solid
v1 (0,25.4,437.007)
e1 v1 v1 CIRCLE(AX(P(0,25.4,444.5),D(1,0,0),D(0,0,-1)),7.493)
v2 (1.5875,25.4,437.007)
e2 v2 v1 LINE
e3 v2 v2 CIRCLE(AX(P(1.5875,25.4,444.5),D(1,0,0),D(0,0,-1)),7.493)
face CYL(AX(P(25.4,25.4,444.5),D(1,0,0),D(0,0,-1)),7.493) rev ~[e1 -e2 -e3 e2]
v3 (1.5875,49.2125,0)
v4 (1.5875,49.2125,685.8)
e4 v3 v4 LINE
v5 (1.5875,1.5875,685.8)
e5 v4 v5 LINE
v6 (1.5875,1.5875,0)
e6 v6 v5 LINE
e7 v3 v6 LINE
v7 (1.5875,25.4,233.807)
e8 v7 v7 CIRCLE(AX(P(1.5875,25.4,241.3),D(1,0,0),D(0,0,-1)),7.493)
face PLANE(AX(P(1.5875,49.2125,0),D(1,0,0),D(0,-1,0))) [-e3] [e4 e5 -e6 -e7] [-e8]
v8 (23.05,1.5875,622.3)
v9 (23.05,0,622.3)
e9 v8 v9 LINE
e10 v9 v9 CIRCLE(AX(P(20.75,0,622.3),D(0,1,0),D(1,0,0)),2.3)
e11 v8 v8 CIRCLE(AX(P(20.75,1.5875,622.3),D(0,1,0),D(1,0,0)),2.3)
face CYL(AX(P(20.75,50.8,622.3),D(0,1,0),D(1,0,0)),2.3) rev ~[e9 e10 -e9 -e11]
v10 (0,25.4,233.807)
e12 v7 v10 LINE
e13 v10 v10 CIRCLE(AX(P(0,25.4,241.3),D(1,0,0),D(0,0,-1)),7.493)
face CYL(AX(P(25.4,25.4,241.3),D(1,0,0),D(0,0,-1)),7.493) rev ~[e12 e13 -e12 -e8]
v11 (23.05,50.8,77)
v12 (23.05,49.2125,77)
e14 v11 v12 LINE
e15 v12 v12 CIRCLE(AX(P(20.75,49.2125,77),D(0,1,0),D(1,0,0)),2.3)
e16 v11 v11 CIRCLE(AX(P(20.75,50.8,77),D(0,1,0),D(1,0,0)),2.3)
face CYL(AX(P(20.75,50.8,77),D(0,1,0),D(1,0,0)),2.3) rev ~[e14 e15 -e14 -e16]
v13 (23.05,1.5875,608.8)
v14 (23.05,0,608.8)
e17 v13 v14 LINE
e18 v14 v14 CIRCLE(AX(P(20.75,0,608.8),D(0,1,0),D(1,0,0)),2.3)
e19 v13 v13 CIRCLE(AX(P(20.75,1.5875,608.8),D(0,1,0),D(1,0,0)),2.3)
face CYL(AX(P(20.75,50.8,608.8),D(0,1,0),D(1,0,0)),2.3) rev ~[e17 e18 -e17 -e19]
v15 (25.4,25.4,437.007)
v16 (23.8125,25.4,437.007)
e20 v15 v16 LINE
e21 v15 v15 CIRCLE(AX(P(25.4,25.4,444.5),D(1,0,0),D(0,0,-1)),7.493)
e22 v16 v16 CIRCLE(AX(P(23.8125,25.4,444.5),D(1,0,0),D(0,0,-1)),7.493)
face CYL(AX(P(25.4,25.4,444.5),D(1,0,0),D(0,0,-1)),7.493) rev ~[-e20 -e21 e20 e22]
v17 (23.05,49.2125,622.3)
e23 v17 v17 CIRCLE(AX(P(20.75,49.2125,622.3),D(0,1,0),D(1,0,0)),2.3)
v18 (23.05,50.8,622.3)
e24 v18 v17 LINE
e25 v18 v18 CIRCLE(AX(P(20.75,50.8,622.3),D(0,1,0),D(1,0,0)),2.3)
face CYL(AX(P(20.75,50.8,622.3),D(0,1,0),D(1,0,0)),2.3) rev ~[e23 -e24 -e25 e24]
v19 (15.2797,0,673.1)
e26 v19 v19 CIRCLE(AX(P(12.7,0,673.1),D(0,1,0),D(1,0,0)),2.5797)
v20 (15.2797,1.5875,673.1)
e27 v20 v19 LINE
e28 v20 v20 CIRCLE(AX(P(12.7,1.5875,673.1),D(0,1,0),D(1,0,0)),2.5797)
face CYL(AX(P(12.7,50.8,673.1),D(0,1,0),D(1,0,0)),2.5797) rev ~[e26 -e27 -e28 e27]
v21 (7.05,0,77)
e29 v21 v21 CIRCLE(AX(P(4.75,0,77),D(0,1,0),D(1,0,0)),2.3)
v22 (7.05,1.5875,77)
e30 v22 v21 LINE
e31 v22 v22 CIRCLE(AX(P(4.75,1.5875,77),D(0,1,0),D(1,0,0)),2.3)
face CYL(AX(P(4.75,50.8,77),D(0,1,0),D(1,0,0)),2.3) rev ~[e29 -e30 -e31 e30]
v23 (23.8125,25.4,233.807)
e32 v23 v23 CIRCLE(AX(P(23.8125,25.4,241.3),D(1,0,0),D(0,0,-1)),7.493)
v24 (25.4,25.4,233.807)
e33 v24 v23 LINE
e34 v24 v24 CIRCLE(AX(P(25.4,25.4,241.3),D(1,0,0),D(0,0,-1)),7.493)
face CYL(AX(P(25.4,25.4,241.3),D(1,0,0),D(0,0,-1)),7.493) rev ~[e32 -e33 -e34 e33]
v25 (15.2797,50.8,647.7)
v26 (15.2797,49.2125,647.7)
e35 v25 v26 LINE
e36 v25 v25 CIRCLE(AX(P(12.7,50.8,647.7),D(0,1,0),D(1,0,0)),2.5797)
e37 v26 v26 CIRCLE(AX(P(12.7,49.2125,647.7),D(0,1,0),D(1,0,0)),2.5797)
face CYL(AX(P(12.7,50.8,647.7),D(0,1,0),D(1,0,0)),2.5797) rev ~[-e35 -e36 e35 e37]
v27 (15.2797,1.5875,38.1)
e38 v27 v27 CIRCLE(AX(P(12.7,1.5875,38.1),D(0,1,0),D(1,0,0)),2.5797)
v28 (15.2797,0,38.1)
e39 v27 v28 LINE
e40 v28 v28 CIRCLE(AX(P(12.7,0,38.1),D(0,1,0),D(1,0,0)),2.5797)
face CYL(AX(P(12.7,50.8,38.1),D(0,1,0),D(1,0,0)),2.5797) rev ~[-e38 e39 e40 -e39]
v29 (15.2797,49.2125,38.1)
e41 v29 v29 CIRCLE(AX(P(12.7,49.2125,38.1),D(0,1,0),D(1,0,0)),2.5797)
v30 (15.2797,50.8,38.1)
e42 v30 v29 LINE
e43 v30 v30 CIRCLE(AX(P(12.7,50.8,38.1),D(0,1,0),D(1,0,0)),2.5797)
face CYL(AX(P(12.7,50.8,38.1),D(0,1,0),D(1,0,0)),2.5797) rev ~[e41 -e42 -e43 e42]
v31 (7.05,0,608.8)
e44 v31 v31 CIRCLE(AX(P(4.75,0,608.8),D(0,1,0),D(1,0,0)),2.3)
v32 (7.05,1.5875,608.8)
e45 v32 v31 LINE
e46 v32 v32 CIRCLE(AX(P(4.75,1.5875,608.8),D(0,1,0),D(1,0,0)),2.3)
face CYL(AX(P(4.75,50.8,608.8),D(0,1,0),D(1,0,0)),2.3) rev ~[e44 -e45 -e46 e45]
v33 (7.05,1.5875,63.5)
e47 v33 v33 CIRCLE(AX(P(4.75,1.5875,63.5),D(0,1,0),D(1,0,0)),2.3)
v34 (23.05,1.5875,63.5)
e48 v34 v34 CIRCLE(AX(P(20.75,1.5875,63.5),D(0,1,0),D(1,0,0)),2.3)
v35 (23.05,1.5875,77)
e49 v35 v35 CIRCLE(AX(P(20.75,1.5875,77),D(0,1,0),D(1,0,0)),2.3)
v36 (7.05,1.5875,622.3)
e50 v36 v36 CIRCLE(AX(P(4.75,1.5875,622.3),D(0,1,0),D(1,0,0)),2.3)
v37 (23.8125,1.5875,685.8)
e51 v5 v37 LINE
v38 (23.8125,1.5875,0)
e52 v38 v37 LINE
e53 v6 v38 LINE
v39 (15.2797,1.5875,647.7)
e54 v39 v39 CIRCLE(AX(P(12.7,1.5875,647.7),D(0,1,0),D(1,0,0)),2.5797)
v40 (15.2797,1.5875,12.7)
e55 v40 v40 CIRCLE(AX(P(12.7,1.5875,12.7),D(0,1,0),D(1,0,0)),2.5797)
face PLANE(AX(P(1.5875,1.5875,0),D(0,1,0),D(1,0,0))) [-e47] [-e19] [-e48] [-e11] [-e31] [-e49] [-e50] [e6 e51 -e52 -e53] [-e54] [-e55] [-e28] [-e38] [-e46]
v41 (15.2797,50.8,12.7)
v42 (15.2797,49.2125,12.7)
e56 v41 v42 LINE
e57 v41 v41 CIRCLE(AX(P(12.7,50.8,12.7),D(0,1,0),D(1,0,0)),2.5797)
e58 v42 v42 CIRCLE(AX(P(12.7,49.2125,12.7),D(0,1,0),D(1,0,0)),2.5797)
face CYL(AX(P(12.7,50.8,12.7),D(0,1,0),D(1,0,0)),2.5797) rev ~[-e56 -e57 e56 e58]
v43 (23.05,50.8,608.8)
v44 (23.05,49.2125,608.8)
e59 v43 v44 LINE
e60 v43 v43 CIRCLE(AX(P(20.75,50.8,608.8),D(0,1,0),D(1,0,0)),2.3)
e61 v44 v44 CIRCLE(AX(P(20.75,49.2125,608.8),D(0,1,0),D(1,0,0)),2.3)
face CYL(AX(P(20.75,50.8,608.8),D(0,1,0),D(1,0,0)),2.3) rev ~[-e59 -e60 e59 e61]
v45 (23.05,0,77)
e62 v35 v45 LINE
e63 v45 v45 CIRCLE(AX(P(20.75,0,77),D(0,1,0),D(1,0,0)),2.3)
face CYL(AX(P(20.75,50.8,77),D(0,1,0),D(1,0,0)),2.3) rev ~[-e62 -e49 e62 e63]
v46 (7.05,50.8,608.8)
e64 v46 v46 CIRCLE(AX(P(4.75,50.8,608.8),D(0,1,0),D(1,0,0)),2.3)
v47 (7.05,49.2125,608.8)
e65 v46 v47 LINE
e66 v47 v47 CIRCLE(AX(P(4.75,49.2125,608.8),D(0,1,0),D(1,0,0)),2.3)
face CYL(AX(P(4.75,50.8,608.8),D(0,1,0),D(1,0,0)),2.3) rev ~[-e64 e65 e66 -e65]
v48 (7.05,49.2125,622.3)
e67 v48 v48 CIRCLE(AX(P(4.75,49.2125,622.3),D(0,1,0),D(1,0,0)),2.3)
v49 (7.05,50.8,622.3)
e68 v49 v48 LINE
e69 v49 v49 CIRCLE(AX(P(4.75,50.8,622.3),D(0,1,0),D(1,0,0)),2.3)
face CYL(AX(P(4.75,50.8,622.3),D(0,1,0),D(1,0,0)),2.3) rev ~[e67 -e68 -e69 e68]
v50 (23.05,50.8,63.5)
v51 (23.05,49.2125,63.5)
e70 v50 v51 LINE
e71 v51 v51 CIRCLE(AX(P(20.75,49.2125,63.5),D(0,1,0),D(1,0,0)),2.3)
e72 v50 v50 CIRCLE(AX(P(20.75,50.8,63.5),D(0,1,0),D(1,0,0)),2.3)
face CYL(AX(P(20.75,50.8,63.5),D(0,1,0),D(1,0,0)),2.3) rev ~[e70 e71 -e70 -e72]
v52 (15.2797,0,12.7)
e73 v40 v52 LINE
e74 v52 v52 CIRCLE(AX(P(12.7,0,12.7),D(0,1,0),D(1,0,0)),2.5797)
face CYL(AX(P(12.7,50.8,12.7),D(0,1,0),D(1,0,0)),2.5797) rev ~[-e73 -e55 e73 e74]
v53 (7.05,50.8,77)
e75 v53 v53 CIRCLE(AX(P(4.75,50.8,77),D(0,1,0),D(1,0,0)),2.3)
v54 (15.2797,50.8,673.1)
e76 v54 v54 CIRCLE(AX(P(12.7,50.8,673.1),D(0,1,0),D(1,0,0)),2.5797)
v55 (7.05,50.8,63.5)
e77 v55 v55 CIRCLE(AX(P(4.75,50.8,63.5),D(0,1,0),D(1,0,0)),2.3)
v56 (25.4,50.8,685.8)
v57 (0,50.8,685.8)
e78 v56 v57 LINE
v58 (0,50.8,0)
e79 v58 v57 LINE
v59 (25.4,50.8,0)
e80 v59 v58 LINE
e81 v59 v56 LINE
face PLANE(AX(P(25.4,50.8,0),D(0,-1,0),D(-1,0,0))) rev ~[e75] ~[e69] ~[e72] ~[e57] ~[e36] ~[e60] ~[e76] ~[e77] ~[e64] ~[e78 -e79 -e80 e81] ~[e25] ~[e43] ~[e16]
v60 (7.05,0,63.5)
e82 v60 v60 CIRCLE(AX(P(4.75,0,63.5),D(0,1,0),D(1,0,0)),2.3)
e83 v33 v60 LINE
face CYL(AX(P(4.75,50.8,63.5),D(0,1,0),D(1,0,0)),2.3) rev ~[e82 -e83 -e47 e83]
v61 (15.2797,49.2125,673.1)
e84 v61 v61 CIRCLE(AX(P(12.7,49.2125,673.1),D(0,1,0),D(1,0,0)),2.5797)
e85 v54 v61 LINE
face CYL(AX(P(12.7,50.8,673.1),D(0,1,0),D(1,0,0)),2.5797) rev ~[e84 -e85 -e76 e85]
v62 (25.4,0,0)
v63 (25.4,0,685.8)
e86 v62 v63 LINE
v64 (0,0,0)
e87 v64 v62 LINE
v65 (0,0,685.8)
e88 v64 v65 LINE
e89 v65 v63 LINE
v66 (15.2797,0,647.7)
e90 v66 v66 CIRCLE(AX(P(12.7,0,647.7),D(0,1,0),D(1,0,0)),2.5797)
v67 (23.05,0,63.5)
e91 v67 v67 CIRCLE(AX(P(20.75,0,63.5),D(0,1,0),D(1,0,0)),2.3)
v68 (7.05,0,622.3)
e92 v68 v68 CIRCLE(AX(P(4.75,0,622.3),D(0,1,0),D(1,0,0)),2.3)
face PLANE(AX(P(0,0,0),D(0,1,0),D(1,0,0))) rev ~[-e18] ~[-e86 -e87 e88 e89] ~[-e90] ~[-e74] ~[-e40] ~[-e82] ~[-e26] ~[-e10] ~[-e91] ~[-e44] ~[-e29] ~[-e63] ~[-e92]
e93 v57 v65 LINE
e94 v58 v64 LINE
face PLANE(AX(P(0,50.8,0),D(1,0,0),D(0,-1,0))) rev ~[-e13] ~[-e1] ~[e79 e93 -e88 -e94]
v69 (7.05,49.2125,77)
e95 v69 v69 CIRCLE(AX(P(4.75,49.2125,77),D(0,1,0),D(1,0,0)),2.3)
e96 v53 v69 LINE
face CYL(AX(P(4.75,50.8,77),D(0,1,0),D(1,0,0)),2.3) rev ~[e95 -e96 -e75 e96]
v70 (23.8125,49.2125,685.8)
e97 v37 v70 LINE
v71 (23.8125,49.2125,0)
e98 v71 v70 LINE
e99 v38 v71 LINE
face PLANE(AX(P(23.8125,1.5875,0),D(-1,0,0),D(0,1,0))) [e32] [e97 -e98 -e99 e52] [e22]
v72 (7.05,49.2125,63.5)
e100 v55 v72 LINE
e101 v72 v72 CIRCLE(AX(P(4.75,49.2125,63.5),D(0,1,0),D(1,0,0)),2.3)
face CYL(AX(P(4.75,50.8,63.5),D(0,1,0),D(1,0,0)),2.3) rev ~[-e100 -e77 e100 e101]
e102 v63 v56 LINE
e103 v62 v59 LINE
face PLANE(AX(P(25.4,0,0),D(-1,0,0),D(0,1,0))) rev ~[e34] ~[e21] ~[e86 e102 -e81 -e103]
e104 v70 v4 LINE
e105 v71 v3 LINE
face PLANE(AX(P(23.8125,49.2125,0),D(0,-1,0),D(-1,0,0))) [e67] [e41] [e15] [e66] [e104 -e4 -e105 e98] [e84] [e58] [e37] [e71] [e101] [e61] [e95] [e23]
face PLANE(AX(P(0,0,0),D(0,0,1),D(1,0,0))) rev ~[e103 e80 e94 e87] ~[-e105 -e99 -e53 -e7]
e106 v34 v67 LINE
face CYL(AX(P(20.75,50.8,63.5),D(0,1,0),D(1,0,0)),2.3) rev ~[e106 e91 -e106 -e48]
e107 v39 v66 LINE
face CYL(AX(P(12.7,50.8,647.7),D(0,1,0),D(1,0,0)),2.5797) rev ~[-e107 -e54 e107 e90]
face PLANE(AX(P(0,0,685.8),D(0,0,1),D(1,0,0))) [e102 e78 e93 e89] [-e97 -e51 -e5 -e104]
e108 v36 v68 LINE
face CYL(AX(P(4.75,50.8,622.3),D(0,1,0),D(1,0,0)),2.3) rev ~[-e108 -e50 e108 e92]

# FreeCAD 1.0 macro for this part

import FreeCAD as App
import Part
import Sketcher
from FreeCAD import Vector
Q = App.Units.Quantity

doc = App.newDocument("Part")
params = doc.addObject("Spreadsheet::Sheet", "Params")
for row, (alias, value) in enumerate([
    ("sketch1_width", "1 in"),
    ("sketch1_height", "2 in"),
    ("pad1_length", "27 in"),
    ("sketch2_diameter", "0.203126 in"),
    ("pocket1_length", "6.5 in"),
    ("sketch3_diameter", "0.59 in"),
    ("pocket2_length", "1 in"),
    ("pocket3_length", "3.9375 in"),
], start=1):
    params.set(f"A{row}", alias)
    params.set(f"B{row}", "=" + value)
    params.setAlias(f"B{row}", alias)

body = doc.addObject("PartDesign::Body", "Body")

# Sketch on XY plane
sketch1 = doc.addObject("Sketcher::SketchObject", "Sketch")
body.addObject(sketch1)
sketch1.AttachmentSupport = (doc.XY_Plane, [""])
sketch1.MapMode = "FlatFace"
sketch1.addGeometry([
    Part.LineSegment(Vector(0, 51, 0), Vector(0, 0, 0)),  # 0
    Part.LineSegment(Vector(0, 0, 0), Vector(25, 0, 0)),  # 1
    Part.LineSegment(Vector(25, 0, 0), Vector(25, 51, 0)),  # 2
    Part.LineSegment(Vector(25, 51, 0), Vector(0, 51, 0)),  # 3
    Part.LineSegment(Vector(24, 2, 0), Vector(2, 2, 0)),  # 4
    Part.LineSegment(Vector(2, 2, 0), Vector(2, 49, 0)),  # 5
    Part.LineSegment(Vector(2, 49, 0), Vector(24, 49, 0)),  # 6
    Part.LineSegment(Vector(24, 49, 0), Vector(24, 2, 0)),  # 7
], False)
sketch1.addConstraint([
    Sketcher.Constraint("Coincident", 0, 2, 1, 1),
    Sketcher.Constraint("Coincident", 1, 2, 2, 1),
    Sketcher.Constraint("Coincident", 2, 2, 3, 1),
    Sketcher.Constraint("Coincident", 3, 2, 0, 1),
    Sketcher.Constraint("Coincident", 4, 2, 5, 1),
    Sketcher.Constraint("Coincident", 5, 2, 6, 1),
    Sketcher.Constraint("Coincident", 6, 2, 7, 1),
    Sketcher.Constraint("Coincident", 7, 2, 4, 1),
    Sketcher.Constraint("Vertical", 0),
    Sketcher.Constraint("Horizontal", 1),
    Sketcher.Constraint("Vertical", 2),
    Sketcher.Constraint("Horizontal", 3),
    Sketcher.Constraint("Horizontal", 4),
    Sketcher.Constraint("Vertical", 5),
    Sketcher.Constraint("Horizontal", 6),
    Sketcher.Constraint("Vertical", 7),
    Sketcher.Constraint("Coincident", 0, 2, -1, 1),
    Sketcher.Constraint("DistanceX", 1, 1, 1, 2, Q("1 in")),
    Sketcher.Constraint("DistanceY", 0, 2, 0, 1, Q("2 in")),
    Sketcher.Constraint("DistanceX", -1, 1, 4, 2, Q("0.0625 in")),
    Sketcher.Constraint("DistanceY", -1, 1, 4, 2, Q("0.0625 in")),
    Sketcher.Constraint("DistanceY", 5, 2, 3, 2, Q("0.0625 in")),
    Sketcher.Constraint("DistanceX", 6, 2, 2, 2, Q("0.0625 in")),
])
sketch1.setExpression("Constraints[17]", "Params.sketch1_width")
sketch1.setExpression("Constraints[18]", "Params.sketch1_height")
pad1 = doc.addObject("PartDesign::Pad", "Pad")
body.addObject(pad1)
pad1.Profile = sketch1
pad1.setExpression("Length", "Params.pad1_length")

# Sketch on XZ plane
sketch2 = doc.addObject("Sketcher::SketchObject", "Sketch001")
body.addObject(sketch2)
sketch2.AttachmentSupport = (doc.XZ_Plane, [""])
sketch2.MapMode = "FlatFace"
sketch2.AttachmentOffset = App.Placement(Vector(0, 0, -2 * 25.4), App.Rotation())
sketch2.addGeometry([
    Part.Circle(Vector(12.7, 38.1, 0), Vector(0, 0, 1), 2.6),
    Part.Circle(Vector(12.7, 12.7, 0), Vector(0, 0, 1), 2.6),
    Part.Circle(Vector(12.7, 647.7, 0), Vector(0, 0, 1), 2.6),
    Part.Circle(Vector(12.7, 673.1, 0), Vector(0, 0, 1), 2.6),
], False)
sketch2.addConstraint([
    Sketcher.Constraint("Equal", 0, 1),
    Sketcher.Constraint("Equal", 1, 2),
    Sketcher.Constraint("Equal", 2, 3),
    Sketcher.Constraint("Vertical", 0, 3, 1, 3),
    Sketcher.Constraint("Vertical", 1, 3, 2, 3),
    Sketcher.Constraint("Vertical", 2, 3, 3, 3),
    Sketcher.Constraint("Diameter", 0, Q("0.203126 in")),
    Sketcher.Constraint("DistanceY", 1, 3, 0, 3, Q("1 in")),
    Sketcher.Constraint("DistanceY", 2, 3, 3, 3, Q("1 in")),
    Sketcher.Constraint("DistanceX", -1, 1, 0, 3, Q("0.5 in")),
    Sketcher.Constraint("DistanceY", -1, 1, 1, 3, Q("0.5 in")),
    Sketcher.Constraint("DistanceY", 0, 3, 2, 3, Q("24 in")),
])
sketch2.setExpression("Constraints[6]", "Params.sketch2_diameter")
pocket1 = doc.addObject("PartDesign::Pocket", "Pocket")
body.addObject(pocket1)
pocket1.Profile = sketch2
pocket1.setExpression("Length", "Params.pocket1_length")
pocket1.Reversed = True

# Sketch on YZ plane
sketch3 = doc.addObject("Sketcher::SketchObject", "Sketch002")
body.addObject(sketch3)
sketch3.AttachmentSupport = (doc.YZ_Plane, [""])
sketch3.MapMode = "FlatFace"
sketch3.AttachmentOffset = App.Placement(Vector(0, 0, 1 * 25.4), App.Rotation())
sketch3.addGeometry([
    Part.Circle(Vector(25, 241, 0), Vector(0, 0, 1), 7),
    Part.Circle(Vector(25, 444, 0), Vector(0, 0, 1), 7),
], False)
sketch3.addConstraint([
    Sketcher.Constraint("Equal", 0, 1),
    Sketcher.Constraint("Vertical", 0, 3, 1, 3),
    Sketcher.Constraint("Diameter", 0, Q("0.59 in")),
    Sketcher.Constraint("DistanceY", -1, 1, 0, 3, Q("9.5 in")),
    Sketcher.Constraint("DistanceX", -1, 1, 0, 3, Q("1 in")),
    Sketcher.Constraint("DistanceY", 0, 3, 1, 3, Q("8 in")),
])
sketch3.setExpression("Constraints[2]", "Params.sketch3_diameter")
pocket2 = doc.addObject("PartDesign::Pocket", "Pocket001")
body.addObject(pocket2)
pocket2.Profile = sketch3
pocket2.setExpression("Length", "Params.pocket2_length")

# Sketch on XZ plane
sketch4 = doc.addObject("Sketcher::SketchObject", "Sketch003")
body.addObject(sketch4)
sketch4.AttachmentSupport = (doc.XZ_Plane, [""])
sketch4.MapMode = "FlatFace"
sketch4.AttachmentOffset = App.Placement(Vector(0, 0, -2 * 25.4), App.Rotation())
sketch4.addGeometry([
    Part.Circle(Vector(4.8, 77, 0), Vector(0, 0, 1), 2.3),  # 0
    Part.Circle(Vector(4.8, 63.5, 0), Vector(0, 0, 1), 2.3),  # 1
    Part.Circle(Vector(20.8, 63.5, 0), Vector(0, 0, 1), 2.3),  # 2
    Part.Circle(Vector(20.8, 77, 0), Vector(0, 0, 1), 2.3),  # 3
    Part.Circle(Vector(4.8, 608.8, 0), Vector(0, 0, 1), 2.3),  # 4
    Part.Circle(Vector(4.8, 622.3, 0), Vector(0, 0, 1), 2.3),  # 5
    Part.Circle(Vector(20.8, 622.3, 0), Vector(0, 0, 1), 2.3),  # 6
    Part.Circle(Vector(20.8, 608.8, 0), Vector(0, 0, 1), 2.3),  # 7
], False)
sketch4.addConstraint([
    Sketcher.Constraint("Equal", 0, 1),
    Sketcher.Constraint("Equal", 1, 2),
    Sketcher.Constraint("Equal", 2, 3),
    Sketcher.Constraint("Equal", 3, 4),
    Sketcher.Constraint("Equal", 4, 5),
    Sketcher.Constraint("Equal", 5, 6),
    Sketcher.Constraint("Equal", 6, 7),
    Sketcher.Constraint("Horizontal", 1, 3, 2, 3),
    Sketcher.Constraint("Horizontal", 0, 3, 3, 3),
    Sketcher.Constraint("Horizontal", 5, 3, 6, 3),
    Sketcher.Constraint("Horizontal", 4, 3, 7, 3),
    Sketcher.Constraint("Vertical", 0, 3, 1, 3),
    Sketcher.Constraint("Vertical", 2, 3, 3, 3),
    Sketcher.Constraint("Vertical", 1, 3, 4, 3),
    Sketcher.Constraint("Vertical", 4, 3, 5, 3),
    Sketcher.Constraint("Vertical", 3, 3, 6, 3),
    Sketcher.Constraint("Vertical", 6, 3, 7, 3),
    Sketcher.Constraint("Diameter", 0, Q("0.1811 in")),
    Sketcher.Constraint("DistanceX", -1, 1, 0, 3, Q("0.187 in")),
    Sketcher.Constraint("DistanceY", 1, 3, 5, 3, Q("22 in")),
    Sketcher.Constraint("DistanceY", -1, 1, 1, 3, Q("2.5 in")),
    Sketcher.Constraint("DistanceY", 1, 3, 0, 3, Q("0.5315 in")),
    Sketcher.Constraint("DistanceY", 4, 3, 5, 3, Q("0.5315 in")),
    Sketcher.Constraint("DistanceX", 1, 3, 2, 3, 16.0),
])
pocket3 = doc.addObject("PartDesign::Pocket", "Pocket002")
body.addObject(pocket3)
pocket3.Profile = sketch4
pocket3.setExpression("Length", "Params.pocket3_length")
pocket3.Reversed = True

doc.recompute()
